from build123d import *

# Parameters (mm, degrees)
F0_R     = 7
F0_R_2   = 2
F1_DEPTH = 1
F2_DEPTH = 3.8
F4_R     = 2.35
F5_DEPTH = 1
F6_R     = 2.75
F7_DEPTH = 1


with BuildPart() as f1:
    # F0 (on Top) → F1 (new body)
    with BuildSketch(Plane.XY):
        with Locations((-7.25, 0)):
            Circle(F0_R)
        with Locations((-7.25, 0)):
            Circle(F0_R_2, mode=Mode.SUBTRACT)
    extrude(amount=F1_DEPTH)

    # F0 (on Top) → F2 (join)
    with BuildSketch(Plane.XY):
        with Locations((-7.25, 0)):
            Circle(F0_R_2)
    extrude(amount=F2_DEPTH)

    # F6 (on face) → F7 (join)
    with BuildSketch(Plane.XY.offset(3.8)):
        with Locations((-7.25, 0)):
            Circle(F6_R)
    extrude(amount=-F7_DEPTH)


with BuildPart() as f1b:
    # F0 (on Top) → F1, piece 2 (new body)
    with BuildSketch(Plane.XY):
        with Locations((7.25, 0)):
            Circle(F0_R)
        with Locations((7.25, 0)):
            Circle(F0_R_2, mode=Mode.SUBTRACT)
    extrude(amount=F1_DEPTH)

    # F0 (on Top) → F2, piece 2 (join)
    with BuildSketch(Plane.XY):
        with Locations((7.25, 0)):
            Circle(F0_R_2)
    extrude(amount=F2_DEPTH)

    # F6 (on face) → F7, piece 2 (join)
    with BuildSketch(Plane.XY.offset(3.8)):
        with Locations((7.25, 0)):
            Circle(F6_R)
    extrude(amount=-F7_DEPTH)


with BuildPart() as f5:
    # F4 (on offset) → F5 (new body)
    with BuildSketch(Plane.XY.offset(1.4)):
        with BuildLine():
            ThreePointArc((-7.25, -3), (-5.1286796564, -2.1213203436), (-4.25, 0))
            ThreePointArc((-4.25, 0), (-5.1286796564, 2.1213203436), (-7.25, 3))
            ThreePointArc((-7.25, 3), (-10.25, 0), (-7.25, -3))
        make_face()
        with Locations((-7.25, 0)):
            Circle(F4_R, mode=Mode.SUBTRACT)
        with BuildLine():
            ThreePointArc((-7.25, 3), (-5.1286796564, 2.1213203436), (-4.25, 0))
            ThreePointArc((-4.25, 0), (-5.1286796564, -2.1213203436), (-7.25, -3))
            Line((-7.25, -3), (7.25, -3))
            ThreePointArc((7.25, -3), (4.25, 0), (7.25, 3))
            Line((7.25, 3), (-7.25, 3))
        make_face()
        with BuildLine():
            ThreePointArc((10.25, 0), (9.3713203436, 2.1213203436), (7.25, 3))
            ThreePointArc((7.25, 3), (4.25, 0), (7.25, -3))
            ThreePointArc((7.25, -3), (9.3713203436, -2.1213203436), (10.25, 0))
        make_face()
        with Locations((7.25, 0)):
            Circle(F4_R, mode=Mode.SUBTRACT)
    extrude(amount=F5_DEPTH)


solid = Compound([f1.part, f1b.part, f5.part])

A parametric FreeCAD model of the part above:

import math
import FreeCAD as App
import Part
import Sketcher
Q = App.Units.Quantity

doc = App.newDocument("Part")
body = doc.addObject("PartDesign::Body", "Body")

sketch1 = body.newObject("Sketcher::SketchObject", "Sketch")
sketch1.AttachmentSupport = (doc.getObject("XY_Plane"), [""])
sketch1.MapMode = "FlatFace"
sketch1.addGeometry(Part.Circle(App.Vector(-7.2, 0, 0), App.Vector(0, 0, 1), 7), False)
sketch1.addGeometry(Part.Circle(App.Vector(-7.2, 0, 0), App.Vector(0, 0, 1), 2), False)
sketch1.addConstraint(Sketcher.Constraint("Coincident", 1, 3, 0, 3))
sketch1.addConstraint(Sketcher.Constraint("PointOnObject", 0, 3, -1))
sketch1.addConstraint(Sketcher.Constraint("Diameter", 0, Q("14 mm")))
sketch1.addConstraint(Sketcher.Constraint("Diameter", 1, Q("4 mm")))
sketch1.addConstraint(Sketcher.Constraint("DistanceX", 0, 3, -1, 1, Q("7.25 mm")))
pad1 = body.newObject("PartDesign::Pad", "Pad")
pad1.Profile = sketch1
pad1.Length = 1

sketch2 = body.newObject("Sketcher::SketchObject", "Sketch001")
sketch2.AttachmentSupport = (doc.getObject("XY_Plane"), [""])
sketch2.MapMode = "FlatFace"
sketch2.addGeometry(Part.Circle(App.Vector(-7.2, 0, 0), App.Vector(0, 0, 1), 2), False)
sketch2.addConstraint(Sketcher.Constraint("PointOnObject", 0, 3, -1))
sketch2.addConstraint(Sketcher.Constraint("Diameter", 0, Q("4 mm")))
sketch2.addConstraint(Sketcher.Constraint("DistanceX", 0, 3, -1, 1, Q("7.25 mm")))
pad2 = body.newObject("PartDesign::Pad", "Pad001")
pad2.Profile = sketch2
pad2.Length = 3.8

sketch3 = body.newObject("Sketcher::SketchObject", "Sketch002")
sketch3.AttachmentSupport = (doc.getObject("XY_Plane"), [""])
sketch3.MapMode = "FlatFace"
sketch3.AttachmentOffset = App.Placement(App.Vector(0, 0, 3.8), App.Rotation())
sketch3.addGeometry(Part.Circle(App.Vector(-7.2, 0, 0), App.Vector(0, 0, 1), 2.8), False)
sketch3.addConstraint(Sketcher.Constraint("PointOnObject", 0, 3, -1))
sketch3.addConstraint(Sketcher.Constraint("Diameter", 0, Q("5.5 mm")))
sketch3.addConstraint(Sketcher.Constraint("DistanceX", 0, 3, -1, 1, Q("7.25 mm")))
pad3 = body.newObject("PartDesign::Pad", "Pad002")
pad3.Profile = sketch3
pad3.Length = 1
pad3.Reversed = True
body2 = doc.addObject("PartDesign::Body", "Body001")

sketch4 = body2.newObject("Sketcher::SketchObject", "Sketch003")
sketch4.AttachmentSupport = (doc.getObject("XY_Plane001"), [""])
sketch4.MapMode = "FlatFace"
sketch4.addGeometry(Part.Circle(App.Vector(7.2, 0, 0), App.Vector(0, 0, 1), 7), False)
sketch4.addGeometry(Part.Circle(App.Vector(7.2, 0, 0), App.Vector(0, 0, 1), 2), False)
sketch4.addConstraint(Sketcher.Constraint("Coincident", 1, 3, 0, 3))
sketch4.addConstraint(Sketcher.Constraint("PointOnObject", 0, 3, -1))
sketch4.addConstraint(Sketcher.Constraint("Diameter", 0, Q("14 mm")))
sketch4.addConstraint(Sketcher.Constraint("Diameter", 1, Q("4 mm")))
sketch4.addConstraint(Sketcher.Constraint("DistanceX", -1, 1, 0, 3, Q("7.25 mm")))
pad4 = body2.newObject("PartDesign::Pad", "Pad003")
pad4.Profile = sketch4
pad4.Length = 1

sketch5 = body2.newObject("Sketcher::SketchObject", "Sketch004")
sketch5.AttachmentSupport = (doc.getObject("XY_Plane001"), [""])
sketch5.MapMode = "FlatFace"
sketch5.addGeometry(Part.Circle(App.Vector(7.2, 0, 0), App.Vector(0, 0, 1), 2), False)
sketch5.addConstraint(Sketcher.Constraint("PointOnObject", 0, 3, -1))
sketch5.addConstraint(Sketcher.Constraint("Diameter", 0, Q("4 mm")))
sketch5.addConstraint(Sketcher.Constraint("DistanceX", -1, 1, 0, 3, Q("7.25 mm")))
pad5 = body2.newObject("PartDesign::Pad", "Pad004")
pad5.Profile = sketch5
pad5.Length = 3.8

sketch6 = body2.newObject("Sketcher::SketchObject", "Sketch005")
sketch6.AttachmentSupport = (doc.getObject("XY_Plane001"), [""])
sketch6.MapMode = "FlatFace"
sketch6.AttachmentOffset = App.Placement(App.Vector(0, 0, 3.8), App.Rotation())
sketch6.addGeometry(Part.Circle(App.Vector(7.2, 0, 0), App.Vector(0, 0, 1), 2.8), False)
sketch6.addConstraint(Sketcher.Constraint("PointOnObject", 0, 3, -1))
sketch6.addConstraint(Sketcher.Constraint("Diameter", 0, Q("5.5 mm")))
sketch6.addConstraint(Sketcher.Constraint("DistanceX", -1, 1, 0, 3, Q("7.25 mm")))
pad6 = body2.newObject("PartDesign::Pad", "Pad005")
pad6.Profile = sketch6
pad6.Length = 1
pad6.Reversed = True
body3 = doc.addObject("PartDesign::Body", "Body002")

sketch7 = body3.newObject("Sketcher::SketchObject", "Sketch006")
sketch7.AttachmentSupport = (doc.getObject("XY_Plane002"), [""])
sketch7.MapMode = "FlatFace"
sketch7.AttachmentOffset = App.Placement(App.Vector(0, 0, 1.4), App.Rotation())
sketch7.addGeometry(Part.ArcOfCircle(Part.Circle(App.Vector(-7.2, 0, 0), App.Vector(0, 0, 1), 3), math.radians(90), math.radians(270)), False)
sketch7.addGeometry(Part.LineSegment(App.Vector(-7.2, -3, 0), App.Vector(7.2, -3, 0)), False)
sketch7.addGeometry(Part.ArcOfCircle(Part.Circle(App.Vector(7.2, 0, 0), App.Vector(0, 0, 1), 3), math.radians(-90), math.radians(0)), False)
sketch7.addGeometry(Part.ArcOfCircle(Part.Circle(App.Vector(7.2, 0, 0), App.Vector(0, 0, 1), 3), math.radians(0), math.radians(90)), False)
sketch7.addGeometry(Part.LineSegment(App.Vector(7.2, 3, 0), App.Vector(-7.2, 3, 0)), False)
sketch7.addGeometry(Part.Circle(App.Vector(-7.2, 0, 0), App.Vector(0, 0, 1), 2.4), False)
sketch7.addGeometry(Part.Circle(App.Vector(7.2, 0, 0), App.Vector(0, 0, 1), 2.4), False)
sketch7.addConstraint(Sketcher.Constraint("Tangent", 0, 2, 1, 1))
sketch7.addConstraint(Sketcher.Constraint("Tangent", 1, 2, 2, 1))
sketch7.addConstraint(Sketcher.Constraint("Tangent", 2, 2, 3, 1))
sketch7.addConstraint(Sketcher.Constraint("Tangent", 3, 2, 4, 1))
sketch7.addConstraint(Sketcher.Constraint("Tangent", 4, 2, 0, 1))
sketch7.addConstraint(Sketcher.Constraint("Horizontal", 1))
sketch7.addConstraint(Sketcher.Constraint("Horizontal", 4))
sketch7.addConstraint(Sketcher.Constraint("Coincident", 5, 3, 0, 3))
sketch7.addConstraint(Sketcher.Constraint("Coincident", 6, 3, 2, 3))
sketch7.addConstraint(Sketcher.Constraint("Equal", 0, 2))
sketch7.addConstraint(Sketcher.Constraint("Equal", 5, 6))
sketch7.addConstraint(Sketcher.Constraint("Symmetric", 0, 3, 2, 3, -1, 1))
sketch7.addConstraint(Sketcher.Constraint("PointOnObject", 2, 2, -1))
sketch7.addConstraint(Sketcher.Constraint("Radius", 0, Q("3 mm")))
sketch7.addConstraint(Sketcher.Constraint("Diameter", 5, Q("4.7 mm")))
sketch7.addConstraint(Sketcher.Constraint("DistanceX", 1, 1, 1, 2, Q("14.5 mm")))
pad7 = body3.newObject("PartDesign::Pad", "Pad006")
pad7.Profile = sketch7
pad7.Length = 1

doc.recompute()
